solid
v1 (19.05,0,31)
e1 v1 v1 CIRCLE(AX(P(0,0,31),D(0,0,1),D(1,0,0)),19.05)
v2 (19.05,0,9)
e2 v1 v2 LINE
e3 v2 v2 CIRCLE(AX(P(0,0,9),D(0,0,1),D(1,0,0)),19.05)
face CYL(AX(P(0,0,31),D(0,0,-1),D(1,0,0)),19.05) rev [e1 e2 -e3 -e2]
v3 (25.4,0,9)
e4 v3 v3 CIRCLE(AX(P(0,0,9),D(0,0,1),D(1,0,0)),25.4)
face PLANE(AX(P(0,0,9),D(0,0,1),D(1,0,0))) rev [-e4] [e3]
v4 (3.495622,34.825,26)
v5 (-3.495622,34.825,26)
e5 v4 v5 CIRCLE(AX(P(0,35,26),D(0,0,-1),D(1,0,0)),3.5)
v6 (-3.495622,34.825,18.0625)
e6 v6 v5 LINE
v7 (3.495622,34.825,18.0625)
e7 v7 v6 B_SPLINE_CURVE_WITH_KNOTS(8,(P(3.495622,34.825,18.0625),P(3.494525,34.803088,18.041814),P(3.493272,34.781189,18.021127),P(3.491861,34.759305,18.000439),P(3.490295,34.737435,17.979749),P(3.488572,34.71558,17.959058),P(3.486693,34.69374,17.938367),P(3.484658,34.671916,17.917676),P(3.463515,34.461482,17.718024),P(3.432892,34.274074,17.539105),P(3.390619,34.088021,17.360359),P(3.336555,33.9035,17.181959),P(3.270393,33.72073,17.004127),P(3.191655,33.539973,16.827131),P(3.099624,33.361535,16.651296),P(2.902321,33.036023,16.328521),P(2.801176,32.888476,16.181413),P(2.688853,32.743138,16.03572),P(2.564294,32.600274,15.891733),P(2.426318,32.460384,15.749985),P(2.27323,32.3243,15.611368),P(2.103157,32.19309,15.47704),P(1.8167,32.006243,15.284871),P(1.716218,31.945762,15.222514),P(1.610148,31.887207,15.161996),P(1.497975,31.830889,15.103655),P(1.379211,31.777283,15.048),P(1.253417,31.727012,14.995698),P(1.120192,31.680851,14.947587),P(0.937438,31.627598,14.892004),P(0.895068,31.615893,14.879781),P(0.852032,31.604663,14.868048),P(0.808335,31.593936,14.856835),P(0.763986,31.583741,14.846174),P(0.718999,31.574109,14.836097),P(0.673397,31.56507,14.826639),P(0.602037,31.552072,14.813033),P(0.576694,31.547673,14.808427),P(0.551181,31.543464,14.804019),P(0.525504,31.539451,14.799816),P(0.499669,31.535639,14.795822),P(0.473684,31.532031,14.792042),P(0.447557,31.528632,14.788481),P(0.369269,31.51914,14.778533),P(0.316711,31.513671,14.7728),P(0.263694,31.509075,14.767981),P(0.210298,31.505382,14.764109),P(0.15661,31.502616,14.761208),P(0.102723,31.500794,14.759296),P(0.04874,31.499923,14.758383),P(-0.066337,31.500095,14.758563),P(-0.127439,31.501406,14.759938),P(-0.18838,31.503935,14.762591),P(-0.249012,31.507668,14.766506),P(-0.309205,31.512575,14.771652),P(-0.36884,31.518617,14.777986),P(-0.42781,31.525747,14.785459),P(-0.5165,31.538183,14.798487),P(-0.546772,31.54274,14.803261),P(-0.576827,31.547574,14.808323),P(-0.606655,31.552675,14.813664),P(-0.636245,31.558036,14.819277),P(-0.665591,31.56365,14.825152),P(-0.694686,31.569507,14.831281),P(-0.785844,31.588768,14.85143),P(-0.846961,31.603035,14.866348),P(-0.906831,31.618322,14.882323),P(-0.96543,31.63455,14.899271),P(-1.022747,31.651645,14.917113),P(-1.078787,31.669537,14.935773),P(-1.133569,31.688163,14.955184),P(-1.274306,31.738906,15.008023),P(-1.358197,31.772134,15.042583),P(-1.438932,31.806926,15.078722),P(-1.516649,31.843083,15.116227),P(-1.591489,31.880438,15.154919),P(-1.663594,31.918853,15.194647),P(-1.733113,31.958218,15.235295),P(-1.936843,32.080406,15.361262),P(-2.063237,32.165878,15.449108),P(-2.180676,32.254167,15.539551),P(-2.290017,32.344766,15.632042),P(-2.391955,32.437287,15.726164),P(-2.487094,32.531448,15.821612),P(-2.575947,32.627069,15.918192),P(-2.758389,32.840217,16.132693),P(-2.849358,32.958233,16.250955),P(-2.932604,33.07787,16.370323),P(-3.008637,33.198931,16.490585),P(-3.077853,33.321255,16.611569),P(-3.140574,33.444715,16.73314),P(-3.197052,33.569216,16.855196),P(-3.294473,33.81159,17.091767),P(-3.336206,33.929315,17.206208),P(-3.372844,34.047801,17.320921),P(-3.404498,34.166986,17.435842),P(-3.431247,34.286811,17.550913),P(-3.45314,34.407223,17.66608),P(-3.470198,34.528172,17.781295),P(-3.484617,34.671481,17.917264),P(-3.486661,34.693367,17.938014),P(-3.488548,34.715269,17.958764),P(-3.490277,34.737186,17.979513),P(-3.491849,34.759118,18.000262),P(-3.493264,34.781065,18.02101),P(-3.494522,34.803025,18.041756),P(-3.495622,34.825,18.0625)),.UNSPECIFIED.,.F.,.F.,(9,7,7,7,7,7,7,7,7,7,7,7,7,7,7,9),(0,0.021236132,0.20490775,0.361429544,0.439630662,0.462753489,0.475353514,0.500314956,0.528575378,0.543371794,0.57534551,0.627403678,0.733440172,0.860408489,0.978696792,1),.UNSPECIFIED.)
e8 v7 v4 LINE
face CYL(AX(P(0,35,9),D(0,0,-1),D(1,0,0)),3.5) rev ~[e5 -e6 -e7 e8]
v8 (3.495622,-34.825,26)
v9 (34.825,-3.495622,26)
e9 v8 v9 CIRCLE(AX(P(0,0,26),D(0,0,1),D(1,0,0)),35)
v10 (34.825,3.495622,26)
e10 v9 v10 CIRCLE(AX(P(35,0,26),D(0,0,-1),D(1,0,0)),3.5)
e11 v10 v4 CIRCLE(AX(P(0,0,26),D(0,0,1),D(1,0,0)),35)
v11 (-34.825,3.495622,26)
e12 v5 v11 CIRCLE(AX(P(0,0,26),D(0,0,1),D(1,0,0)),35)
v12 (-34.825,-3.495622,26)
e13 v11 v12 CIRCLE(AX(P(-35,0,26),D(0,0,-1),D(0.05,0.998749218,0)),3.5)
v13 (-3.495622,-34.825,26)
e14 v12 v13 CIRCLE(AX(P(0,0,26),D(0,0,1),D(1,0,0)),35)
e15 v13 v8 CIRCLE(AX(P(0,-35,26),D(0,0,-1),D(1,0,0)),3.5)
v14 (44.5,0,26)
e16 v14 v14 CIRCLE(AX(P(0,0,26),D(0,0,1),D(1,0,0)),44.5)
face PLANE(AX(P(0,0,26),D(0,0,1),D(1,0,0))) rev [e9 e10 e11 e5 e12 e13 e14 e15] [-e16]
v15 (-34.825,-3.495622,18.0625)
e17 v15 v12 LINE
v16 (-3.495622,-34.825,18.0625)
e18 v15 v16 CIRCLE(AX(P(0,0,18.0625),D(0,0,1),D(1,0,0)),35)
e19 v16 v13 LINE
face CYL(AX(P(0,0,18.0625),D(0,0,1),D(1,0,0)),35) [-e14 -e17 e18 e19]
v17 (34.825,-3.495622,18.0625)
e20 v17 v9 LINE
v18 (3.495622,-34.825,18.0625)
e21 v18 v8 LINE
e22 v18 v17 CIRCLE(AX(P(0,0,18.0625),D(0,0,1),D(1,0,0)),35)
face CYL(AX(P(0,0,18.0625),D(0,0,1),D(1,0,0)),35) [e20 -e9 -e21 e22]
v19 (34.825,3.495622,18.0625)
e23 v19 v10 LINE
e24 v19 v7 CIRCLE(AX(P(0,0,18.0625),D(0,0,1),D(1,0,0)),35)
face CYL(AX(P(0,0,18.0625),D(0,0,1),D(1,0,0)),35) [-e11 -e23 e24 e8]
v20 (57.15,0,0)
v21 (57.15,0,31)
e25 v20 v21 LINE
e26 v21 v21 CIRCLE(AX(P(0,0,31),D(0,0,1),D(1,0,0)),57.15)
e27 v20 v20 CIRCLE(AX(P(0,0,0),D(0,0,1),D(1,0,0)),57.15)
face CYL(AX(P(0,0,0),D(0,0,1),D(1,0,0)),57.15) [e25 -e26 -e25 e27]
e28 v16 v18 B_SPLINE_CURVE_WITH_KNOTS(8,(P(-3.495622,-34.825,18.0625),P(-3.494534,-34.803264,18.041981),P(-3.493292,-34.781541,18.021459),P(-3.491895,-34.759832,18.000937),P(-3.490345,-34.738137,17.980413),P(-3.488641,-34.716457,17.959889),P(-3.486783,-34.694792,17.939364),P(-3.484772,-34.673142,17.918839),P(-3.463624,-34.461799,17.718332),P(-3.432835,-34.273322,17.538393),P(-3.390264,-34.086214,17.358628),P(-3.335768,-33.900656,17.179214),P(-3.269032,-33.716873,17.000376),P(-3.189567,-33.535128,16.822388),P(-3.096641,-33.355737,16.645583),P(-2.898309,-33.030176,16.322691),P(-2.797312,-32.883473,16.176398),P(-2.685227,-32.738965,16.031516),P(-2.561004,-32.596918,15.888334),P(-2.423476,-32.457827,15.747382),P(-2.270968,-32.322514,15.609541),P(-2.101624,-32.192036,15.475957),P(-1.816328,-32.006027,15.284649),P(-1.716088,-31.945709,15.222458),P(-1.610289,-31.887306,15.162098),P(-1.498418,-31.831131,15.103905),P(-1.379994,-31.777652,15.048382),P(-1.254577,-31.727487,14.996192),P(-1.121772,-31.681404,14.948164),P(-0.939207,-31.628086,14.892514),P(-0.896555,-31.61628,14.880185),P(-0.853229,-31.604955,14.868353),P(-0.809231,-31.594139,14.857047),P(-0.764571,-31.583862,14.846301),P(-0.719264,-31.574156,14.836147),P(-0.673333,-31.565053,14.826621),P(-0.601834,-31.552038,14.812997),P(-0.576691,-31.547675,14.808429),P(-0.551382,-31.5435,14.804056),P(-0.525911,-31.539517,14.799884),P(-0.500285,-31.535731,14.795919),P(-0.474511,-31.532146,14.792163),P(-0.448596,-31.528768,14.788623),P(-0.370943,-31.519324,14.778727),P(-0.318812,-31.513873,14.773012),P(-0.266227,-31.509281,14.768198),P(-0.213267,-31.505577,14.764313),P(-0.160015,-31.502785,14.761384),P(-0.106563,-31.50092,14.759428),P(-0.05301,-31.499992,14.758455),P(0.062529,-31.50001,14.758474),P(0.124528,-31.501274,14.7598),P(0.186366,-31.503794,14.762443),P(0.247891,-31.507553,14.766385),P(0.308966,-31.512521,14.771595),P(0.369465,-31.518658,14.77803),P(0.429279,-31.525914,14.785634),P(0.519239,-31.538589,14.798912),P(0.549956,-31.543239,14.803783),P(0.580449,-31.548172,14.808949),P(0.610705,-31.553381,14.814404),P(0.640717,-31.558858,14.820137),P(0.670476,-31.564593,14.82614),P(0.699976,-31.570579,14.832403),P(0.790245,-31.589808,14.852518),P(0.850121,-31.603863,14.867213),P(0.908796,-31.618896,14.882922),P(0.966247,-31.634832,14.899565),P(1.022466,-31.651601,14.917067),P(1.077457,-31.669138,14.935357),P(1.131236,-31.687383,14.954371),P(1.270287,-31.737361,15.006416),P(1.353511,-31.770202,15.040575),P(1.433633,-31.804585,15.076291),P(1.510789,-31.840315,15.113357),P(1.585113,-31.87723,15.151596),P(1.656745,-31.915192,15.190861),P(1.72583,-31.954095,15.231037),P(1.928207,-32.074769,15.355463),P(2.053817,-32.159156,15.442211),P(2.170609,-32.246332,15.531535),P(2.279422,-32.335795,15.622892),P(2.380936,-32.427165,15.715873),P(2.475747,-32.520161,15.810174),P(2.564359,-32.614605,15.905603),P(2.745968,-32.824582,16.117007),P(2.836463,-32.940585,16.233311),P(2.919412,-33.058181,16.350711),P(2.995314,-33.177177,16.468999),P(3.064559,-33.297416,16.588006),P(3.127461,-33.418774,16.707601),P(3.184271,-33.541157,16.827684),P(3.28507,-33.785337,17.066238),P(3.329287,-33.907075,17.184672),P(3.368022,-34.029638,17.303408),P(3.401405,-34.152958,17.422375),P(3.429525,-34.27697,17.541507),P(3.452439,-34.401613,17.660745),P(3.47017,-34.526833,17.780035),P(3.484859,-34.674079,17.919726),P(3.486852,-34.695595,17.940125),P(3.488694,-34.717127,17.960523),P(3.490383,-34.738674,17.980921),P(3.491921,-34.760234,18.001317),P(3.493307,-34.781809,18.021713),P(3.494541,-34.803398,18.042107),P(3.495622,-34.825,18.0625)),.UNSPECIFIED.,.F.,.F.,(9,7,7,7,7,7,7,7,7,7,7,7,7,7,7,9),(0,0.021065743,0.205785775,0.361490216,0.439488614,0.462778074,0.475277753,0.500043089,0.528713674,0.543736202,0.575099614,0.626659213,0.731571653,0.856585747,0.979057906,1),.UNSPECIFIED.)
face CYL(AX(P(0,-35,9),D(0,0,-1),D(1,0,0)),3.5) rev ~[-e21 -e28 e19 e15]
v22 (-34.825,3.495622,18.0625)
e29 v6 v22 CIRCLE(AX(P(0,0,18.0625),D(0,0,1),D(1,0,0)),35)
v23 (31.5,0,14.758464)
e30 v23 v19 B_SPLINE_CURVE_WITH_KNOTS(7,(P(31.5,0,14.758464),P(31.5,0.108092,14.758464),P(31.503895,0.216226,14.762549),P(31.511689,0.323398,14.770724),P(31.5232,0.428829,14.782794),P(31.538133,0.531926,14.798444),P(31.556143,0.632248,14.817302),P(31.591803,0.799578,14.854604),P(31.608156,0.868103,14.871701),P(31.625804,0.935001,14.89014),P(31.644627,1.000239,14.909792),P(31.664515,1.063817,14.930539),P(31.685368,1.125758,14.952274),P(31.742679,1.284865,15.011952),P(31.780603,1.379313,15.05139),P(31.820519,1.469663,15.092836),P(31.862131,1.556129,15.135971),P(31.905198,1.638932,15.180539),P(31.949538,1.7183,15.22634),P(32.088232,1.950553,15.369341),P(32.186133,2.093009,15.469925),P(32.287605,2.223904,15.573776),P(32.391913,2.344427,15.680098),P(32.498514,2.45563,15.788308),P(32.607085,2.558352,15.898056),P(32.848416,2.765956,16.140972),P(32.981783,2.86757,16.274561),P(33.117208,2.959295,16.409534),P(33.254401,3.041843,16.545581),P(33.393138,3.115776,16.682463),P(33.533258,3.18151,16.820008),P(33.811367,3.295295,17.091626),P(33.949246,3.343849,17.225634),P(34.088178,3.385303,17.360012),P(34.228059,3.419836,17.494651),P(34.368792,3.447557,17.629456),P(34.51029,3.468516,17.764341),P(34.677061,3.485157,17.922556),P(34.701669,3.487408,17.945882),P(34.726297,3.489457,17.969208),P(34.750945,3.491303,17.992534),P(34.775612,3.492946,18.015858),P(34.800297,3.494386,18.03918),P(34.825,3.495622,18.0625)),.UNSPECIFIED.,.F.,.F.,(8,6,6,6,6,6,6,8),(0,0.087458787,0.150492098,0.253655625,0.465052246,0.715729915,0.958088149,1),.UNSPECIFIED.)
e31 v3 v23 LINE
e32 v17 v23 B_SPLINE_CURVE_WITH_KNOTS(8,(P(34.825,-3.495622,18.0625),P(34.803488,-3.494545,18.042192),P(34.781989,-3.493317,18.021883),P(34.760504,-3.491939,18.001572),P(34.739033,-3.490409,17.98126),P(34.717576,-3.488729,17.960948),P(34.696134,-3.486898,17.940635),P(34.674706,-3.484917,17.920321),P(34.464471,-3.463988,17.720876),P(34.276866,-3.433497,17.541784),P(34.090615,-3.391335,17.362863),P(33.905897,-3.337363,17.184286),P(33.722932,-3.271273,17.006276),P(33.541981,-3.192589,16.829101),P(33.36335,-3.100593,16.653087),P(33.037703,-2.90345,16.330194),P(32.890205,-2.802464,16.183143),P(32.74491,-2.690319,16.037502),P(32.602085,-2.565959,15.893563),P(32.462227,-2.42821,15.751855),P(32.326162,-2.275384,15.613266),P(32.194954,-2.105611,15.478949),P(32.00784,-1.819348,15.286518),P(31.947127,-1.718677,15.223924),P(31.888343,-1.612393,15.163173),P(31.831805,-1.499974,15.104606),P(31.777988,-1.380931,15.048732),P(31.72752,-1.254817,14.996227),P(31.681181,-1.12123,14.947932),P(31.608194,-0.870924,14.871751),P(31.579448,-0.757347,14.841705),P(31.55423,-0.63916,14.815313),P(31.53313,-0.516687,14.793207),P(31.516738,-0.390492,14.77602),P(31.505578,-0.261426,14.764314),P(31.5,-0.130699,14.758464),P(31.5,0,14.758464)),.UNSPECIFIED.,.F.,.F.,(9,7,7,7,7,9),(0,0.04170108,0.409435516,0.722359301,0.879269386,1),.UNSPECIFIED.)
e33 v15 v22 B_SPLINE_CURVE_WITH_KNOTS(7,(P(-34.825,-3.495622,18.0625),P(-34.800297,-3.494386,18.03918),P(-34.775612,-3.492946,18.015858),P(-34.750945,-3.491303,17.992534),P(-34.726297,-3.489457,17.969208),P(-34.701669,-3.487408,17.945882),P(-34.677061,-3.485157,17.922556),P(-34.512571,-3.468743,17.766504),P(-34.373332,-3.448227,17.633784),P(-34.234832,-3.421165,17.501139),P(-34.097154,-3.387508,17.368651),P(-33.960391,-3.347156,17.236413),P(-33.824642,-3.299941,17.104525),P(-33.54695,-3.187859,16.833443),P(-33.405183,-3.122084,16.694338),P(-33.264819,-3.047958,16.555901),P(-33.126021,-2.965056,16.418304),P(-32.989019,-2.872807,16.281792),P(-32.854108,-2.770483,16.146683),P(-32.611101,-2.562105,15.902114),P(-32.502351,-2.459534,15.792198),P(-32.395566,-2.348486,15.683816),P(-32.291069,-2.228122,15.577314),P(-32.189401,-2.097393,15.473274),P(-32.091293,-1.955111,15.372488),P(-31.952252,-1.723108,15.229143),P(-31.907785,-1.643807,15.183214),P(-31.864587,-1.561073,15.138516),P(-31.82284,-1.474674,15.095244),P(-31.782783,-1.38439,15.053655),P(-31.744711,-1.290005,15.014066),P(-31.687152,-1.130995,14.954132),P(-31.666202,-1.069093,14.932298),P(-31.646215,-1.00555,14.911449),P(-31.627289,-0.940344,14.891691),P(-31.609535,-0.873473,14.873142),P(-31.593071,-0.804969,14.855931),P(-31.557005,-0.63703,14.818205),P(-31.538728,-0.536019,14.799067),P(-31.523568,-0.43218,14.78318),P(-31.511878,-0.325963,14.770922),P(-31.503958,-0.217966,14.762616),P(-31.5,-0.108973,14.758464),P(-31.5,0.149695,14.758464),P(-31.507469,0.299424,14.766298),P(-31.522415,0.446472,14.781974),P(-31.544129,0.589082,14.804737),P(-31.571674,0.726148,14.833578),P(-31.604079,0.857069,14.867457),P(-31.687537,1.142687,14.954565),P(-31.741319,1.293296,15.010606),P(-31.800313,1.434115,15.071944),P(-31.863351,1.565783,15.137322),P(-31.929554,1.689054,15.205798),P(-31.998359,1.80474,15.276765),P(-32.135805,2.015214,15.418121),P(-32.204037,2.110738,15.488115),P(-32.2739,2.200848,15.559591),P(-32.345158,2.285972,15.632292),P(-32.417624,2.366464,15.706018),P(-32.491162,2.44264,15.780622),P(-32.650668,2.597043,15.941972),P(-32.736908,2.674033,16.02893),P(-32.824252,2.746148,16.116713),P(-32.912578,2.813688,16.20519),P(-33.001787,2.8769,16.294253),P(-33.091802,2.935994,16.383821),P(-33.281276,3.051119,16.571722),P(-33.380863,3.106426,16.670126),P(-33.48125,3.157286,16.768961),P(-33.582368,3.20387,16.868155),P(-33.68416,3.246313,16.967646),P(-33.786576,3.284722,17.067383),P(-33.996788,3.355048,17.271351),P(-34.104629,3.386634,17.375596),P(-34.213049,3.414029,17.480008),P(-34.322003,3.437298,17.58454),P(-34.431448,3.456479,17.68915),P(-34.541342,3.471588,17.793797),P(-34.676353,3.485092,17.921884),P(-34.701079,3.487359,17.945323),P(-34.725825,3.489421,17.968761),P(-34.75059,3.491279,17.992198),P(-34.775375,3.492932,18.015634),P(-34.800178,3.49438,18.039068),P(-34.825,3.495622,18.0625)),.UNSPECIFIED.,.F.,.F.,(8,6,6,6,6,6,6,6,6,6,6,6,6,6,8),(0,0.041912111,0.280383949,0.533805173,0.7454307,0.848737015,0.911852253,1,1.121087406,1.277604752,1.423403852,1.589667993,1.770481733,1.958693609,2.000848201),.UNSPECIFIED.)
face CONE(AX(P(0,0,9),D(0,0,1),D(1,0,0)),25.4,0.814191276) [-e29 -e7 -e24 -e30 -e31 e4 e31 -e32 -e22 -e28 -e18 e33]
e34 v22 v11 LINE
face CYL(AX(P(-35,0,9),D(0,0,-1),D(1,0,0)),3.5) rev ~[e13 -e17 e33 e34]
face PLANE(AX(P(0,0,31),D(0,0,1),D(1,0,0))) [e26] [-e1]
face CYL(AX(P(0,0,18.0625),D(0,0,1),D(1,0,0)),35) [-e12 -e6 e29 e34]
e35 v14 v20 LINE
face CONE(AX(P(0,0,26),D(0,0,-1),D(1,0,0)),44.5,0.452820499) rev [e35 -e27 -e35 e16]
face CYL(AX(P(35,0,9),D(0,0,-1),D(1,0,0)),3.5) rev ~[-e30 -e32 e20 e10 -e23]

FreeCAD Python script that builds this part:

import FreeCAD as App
import Part
import Sketcher
from FreeCAD import Vector


def add_polygon(sketch, points):
    """Adds a closed chain of lines whose ends are joined by coincident constraints."""
    first, n = sketch.GeometryCount, len(points)
    for a, b in zip(points, points[1:] + points[:1]):
        sketch.addGeometry(Part.LineSegment(App.Vector(*a, 0), App.Vector(*b, 0)), False)
    for i in range(n):
        sketch.addConstraint(Sketcher.Constraint("Coincident", first + i, 2, first + (i + 1) % n, 1))

doc = App.newDocument("Part")
body = doc.addObject("PartDesign::Body", "Body")

sketch1 = doc.addObject("Sketcher::SketchObject", "Sketch")
body.addObject(sketch1)
sketch1.AttachmentSupport = (doc.XZ_Plane, [""])
sketch1.MapMode = "FlatFace"
add_polygon(sketch1, [(44.5, 26), (57.15, 0), (57.15, 31), (19.05, 31), (19.05, 9), (25.4, 9), (35, 18.0625), (35, 26)])
sketch1.addConstraint([
    Sketcher.Constraint("Vertical", 1),
    Sketcher.Constraint("Horizontal", 2),
    Sketcher.Constraint("Vertical", 3),
    Sketcher.Constraint("Horizontal", 4),
    Sketcher.Constraint("Vertical", 6),
    Sketcher.Constraint("Horizontal", 7),
    Sketcher.Constraint("PointOnObject", 0, 2, -1),
    Sketcher.Constraint("DistanceY", 1, 1, 1, 2, 31.0),
    Sketcher.Constraint("DistanceY", 3, 2, 3, 1, 22.0),
    Sketcher.Constraint("DistanceX", 2, 2, 2, 1, 38.1),
    Sketcher.Constraint("DistanceX", 7, 1, 7, 2, 9.5),
    Sketcher.Constraint("DistanceX", -1, 1, 5, 2, 35.0),
    Sketcher.Constraint("DistanceY", -1, 1, 6, 2, 26.0),
    Sketcher.Constraint("DistanceX", 4, 1, 4, 2, 6.35),
    Sketcher.Constraint("DistanceX", -1, 1, 4, 2, 25.4),
    Sketcher.Constraint("DistanceY", 6, 1, 6, 2, 7.9375),
])
revolution = doc.addObject("PartDesign::Revolution", "Revolution")
body.addObject(revolution)
revolution.Profile = sketch1
revolution.ReferenceAxis = (sketch1, ["V_Axis"])
revolution.Angle = 360

sketch2 = doc.addObject("Sketcher::SketchObject", "Sketch001")
body.addObject(sketch2)
sketch2.AttachmentSupport = (doc.XY_Plane, [""])
sketch2.MapMode = "FlatFace"
sketch2.AttachmentOffset = App.Placement(Vector(0, 0, 9), App.Rotation())
sketch2.addGeometry([
    Part.Circle(Vector(0, -35, 0), Vector(0, 0, 1), 3.5),
    Part.Circle(Vector(-35, 0, 0), Vector(0, 0, 1), 3.5),
    Part.Circle(Vector(0, 35, 0), Vector(0, 0, 1), 3.5),
    Part.Circle(Vector(35, 0, 0), Vector(0, 0, 1), 3.5),
], False)
sketch2.addConstraint([
    Sketcher.Constraint("Equal", 0, 1),
    Sketcher.Constraint("Equal", 1, 2),
    Sketcher.Constraint("Equal", 2, 3),
    Sketcher.Constraint("Symmetric", 0, 3, 2, 3, -1, 1),
    Sketcher.Constraint("Symmetric", 1, 3, 3, 3, -1, 1),
    Sketcher.Constraint("PointOnObject", 0, 3, -2),
    Sketcher.Constraint("PointOnObject", 1, 3, -1),
    Sketcher.Constraint("Diameter", 0, 7.0),
    Sketcher.Constraint("DistanceY", 0, 3, -1, 1, 35.0),
    Sketcher.Constraint("DistanceX", 1, 3, -1, 1, 35.0),
])
pocket1 = doc.addObject("PartDesign::Pocket", "Pocket")
body.addObject(pocket1)
pocket1.Profile = sketch2
pocket1.Length = 17
pocket1.Reversed = True

doc.recompute()
